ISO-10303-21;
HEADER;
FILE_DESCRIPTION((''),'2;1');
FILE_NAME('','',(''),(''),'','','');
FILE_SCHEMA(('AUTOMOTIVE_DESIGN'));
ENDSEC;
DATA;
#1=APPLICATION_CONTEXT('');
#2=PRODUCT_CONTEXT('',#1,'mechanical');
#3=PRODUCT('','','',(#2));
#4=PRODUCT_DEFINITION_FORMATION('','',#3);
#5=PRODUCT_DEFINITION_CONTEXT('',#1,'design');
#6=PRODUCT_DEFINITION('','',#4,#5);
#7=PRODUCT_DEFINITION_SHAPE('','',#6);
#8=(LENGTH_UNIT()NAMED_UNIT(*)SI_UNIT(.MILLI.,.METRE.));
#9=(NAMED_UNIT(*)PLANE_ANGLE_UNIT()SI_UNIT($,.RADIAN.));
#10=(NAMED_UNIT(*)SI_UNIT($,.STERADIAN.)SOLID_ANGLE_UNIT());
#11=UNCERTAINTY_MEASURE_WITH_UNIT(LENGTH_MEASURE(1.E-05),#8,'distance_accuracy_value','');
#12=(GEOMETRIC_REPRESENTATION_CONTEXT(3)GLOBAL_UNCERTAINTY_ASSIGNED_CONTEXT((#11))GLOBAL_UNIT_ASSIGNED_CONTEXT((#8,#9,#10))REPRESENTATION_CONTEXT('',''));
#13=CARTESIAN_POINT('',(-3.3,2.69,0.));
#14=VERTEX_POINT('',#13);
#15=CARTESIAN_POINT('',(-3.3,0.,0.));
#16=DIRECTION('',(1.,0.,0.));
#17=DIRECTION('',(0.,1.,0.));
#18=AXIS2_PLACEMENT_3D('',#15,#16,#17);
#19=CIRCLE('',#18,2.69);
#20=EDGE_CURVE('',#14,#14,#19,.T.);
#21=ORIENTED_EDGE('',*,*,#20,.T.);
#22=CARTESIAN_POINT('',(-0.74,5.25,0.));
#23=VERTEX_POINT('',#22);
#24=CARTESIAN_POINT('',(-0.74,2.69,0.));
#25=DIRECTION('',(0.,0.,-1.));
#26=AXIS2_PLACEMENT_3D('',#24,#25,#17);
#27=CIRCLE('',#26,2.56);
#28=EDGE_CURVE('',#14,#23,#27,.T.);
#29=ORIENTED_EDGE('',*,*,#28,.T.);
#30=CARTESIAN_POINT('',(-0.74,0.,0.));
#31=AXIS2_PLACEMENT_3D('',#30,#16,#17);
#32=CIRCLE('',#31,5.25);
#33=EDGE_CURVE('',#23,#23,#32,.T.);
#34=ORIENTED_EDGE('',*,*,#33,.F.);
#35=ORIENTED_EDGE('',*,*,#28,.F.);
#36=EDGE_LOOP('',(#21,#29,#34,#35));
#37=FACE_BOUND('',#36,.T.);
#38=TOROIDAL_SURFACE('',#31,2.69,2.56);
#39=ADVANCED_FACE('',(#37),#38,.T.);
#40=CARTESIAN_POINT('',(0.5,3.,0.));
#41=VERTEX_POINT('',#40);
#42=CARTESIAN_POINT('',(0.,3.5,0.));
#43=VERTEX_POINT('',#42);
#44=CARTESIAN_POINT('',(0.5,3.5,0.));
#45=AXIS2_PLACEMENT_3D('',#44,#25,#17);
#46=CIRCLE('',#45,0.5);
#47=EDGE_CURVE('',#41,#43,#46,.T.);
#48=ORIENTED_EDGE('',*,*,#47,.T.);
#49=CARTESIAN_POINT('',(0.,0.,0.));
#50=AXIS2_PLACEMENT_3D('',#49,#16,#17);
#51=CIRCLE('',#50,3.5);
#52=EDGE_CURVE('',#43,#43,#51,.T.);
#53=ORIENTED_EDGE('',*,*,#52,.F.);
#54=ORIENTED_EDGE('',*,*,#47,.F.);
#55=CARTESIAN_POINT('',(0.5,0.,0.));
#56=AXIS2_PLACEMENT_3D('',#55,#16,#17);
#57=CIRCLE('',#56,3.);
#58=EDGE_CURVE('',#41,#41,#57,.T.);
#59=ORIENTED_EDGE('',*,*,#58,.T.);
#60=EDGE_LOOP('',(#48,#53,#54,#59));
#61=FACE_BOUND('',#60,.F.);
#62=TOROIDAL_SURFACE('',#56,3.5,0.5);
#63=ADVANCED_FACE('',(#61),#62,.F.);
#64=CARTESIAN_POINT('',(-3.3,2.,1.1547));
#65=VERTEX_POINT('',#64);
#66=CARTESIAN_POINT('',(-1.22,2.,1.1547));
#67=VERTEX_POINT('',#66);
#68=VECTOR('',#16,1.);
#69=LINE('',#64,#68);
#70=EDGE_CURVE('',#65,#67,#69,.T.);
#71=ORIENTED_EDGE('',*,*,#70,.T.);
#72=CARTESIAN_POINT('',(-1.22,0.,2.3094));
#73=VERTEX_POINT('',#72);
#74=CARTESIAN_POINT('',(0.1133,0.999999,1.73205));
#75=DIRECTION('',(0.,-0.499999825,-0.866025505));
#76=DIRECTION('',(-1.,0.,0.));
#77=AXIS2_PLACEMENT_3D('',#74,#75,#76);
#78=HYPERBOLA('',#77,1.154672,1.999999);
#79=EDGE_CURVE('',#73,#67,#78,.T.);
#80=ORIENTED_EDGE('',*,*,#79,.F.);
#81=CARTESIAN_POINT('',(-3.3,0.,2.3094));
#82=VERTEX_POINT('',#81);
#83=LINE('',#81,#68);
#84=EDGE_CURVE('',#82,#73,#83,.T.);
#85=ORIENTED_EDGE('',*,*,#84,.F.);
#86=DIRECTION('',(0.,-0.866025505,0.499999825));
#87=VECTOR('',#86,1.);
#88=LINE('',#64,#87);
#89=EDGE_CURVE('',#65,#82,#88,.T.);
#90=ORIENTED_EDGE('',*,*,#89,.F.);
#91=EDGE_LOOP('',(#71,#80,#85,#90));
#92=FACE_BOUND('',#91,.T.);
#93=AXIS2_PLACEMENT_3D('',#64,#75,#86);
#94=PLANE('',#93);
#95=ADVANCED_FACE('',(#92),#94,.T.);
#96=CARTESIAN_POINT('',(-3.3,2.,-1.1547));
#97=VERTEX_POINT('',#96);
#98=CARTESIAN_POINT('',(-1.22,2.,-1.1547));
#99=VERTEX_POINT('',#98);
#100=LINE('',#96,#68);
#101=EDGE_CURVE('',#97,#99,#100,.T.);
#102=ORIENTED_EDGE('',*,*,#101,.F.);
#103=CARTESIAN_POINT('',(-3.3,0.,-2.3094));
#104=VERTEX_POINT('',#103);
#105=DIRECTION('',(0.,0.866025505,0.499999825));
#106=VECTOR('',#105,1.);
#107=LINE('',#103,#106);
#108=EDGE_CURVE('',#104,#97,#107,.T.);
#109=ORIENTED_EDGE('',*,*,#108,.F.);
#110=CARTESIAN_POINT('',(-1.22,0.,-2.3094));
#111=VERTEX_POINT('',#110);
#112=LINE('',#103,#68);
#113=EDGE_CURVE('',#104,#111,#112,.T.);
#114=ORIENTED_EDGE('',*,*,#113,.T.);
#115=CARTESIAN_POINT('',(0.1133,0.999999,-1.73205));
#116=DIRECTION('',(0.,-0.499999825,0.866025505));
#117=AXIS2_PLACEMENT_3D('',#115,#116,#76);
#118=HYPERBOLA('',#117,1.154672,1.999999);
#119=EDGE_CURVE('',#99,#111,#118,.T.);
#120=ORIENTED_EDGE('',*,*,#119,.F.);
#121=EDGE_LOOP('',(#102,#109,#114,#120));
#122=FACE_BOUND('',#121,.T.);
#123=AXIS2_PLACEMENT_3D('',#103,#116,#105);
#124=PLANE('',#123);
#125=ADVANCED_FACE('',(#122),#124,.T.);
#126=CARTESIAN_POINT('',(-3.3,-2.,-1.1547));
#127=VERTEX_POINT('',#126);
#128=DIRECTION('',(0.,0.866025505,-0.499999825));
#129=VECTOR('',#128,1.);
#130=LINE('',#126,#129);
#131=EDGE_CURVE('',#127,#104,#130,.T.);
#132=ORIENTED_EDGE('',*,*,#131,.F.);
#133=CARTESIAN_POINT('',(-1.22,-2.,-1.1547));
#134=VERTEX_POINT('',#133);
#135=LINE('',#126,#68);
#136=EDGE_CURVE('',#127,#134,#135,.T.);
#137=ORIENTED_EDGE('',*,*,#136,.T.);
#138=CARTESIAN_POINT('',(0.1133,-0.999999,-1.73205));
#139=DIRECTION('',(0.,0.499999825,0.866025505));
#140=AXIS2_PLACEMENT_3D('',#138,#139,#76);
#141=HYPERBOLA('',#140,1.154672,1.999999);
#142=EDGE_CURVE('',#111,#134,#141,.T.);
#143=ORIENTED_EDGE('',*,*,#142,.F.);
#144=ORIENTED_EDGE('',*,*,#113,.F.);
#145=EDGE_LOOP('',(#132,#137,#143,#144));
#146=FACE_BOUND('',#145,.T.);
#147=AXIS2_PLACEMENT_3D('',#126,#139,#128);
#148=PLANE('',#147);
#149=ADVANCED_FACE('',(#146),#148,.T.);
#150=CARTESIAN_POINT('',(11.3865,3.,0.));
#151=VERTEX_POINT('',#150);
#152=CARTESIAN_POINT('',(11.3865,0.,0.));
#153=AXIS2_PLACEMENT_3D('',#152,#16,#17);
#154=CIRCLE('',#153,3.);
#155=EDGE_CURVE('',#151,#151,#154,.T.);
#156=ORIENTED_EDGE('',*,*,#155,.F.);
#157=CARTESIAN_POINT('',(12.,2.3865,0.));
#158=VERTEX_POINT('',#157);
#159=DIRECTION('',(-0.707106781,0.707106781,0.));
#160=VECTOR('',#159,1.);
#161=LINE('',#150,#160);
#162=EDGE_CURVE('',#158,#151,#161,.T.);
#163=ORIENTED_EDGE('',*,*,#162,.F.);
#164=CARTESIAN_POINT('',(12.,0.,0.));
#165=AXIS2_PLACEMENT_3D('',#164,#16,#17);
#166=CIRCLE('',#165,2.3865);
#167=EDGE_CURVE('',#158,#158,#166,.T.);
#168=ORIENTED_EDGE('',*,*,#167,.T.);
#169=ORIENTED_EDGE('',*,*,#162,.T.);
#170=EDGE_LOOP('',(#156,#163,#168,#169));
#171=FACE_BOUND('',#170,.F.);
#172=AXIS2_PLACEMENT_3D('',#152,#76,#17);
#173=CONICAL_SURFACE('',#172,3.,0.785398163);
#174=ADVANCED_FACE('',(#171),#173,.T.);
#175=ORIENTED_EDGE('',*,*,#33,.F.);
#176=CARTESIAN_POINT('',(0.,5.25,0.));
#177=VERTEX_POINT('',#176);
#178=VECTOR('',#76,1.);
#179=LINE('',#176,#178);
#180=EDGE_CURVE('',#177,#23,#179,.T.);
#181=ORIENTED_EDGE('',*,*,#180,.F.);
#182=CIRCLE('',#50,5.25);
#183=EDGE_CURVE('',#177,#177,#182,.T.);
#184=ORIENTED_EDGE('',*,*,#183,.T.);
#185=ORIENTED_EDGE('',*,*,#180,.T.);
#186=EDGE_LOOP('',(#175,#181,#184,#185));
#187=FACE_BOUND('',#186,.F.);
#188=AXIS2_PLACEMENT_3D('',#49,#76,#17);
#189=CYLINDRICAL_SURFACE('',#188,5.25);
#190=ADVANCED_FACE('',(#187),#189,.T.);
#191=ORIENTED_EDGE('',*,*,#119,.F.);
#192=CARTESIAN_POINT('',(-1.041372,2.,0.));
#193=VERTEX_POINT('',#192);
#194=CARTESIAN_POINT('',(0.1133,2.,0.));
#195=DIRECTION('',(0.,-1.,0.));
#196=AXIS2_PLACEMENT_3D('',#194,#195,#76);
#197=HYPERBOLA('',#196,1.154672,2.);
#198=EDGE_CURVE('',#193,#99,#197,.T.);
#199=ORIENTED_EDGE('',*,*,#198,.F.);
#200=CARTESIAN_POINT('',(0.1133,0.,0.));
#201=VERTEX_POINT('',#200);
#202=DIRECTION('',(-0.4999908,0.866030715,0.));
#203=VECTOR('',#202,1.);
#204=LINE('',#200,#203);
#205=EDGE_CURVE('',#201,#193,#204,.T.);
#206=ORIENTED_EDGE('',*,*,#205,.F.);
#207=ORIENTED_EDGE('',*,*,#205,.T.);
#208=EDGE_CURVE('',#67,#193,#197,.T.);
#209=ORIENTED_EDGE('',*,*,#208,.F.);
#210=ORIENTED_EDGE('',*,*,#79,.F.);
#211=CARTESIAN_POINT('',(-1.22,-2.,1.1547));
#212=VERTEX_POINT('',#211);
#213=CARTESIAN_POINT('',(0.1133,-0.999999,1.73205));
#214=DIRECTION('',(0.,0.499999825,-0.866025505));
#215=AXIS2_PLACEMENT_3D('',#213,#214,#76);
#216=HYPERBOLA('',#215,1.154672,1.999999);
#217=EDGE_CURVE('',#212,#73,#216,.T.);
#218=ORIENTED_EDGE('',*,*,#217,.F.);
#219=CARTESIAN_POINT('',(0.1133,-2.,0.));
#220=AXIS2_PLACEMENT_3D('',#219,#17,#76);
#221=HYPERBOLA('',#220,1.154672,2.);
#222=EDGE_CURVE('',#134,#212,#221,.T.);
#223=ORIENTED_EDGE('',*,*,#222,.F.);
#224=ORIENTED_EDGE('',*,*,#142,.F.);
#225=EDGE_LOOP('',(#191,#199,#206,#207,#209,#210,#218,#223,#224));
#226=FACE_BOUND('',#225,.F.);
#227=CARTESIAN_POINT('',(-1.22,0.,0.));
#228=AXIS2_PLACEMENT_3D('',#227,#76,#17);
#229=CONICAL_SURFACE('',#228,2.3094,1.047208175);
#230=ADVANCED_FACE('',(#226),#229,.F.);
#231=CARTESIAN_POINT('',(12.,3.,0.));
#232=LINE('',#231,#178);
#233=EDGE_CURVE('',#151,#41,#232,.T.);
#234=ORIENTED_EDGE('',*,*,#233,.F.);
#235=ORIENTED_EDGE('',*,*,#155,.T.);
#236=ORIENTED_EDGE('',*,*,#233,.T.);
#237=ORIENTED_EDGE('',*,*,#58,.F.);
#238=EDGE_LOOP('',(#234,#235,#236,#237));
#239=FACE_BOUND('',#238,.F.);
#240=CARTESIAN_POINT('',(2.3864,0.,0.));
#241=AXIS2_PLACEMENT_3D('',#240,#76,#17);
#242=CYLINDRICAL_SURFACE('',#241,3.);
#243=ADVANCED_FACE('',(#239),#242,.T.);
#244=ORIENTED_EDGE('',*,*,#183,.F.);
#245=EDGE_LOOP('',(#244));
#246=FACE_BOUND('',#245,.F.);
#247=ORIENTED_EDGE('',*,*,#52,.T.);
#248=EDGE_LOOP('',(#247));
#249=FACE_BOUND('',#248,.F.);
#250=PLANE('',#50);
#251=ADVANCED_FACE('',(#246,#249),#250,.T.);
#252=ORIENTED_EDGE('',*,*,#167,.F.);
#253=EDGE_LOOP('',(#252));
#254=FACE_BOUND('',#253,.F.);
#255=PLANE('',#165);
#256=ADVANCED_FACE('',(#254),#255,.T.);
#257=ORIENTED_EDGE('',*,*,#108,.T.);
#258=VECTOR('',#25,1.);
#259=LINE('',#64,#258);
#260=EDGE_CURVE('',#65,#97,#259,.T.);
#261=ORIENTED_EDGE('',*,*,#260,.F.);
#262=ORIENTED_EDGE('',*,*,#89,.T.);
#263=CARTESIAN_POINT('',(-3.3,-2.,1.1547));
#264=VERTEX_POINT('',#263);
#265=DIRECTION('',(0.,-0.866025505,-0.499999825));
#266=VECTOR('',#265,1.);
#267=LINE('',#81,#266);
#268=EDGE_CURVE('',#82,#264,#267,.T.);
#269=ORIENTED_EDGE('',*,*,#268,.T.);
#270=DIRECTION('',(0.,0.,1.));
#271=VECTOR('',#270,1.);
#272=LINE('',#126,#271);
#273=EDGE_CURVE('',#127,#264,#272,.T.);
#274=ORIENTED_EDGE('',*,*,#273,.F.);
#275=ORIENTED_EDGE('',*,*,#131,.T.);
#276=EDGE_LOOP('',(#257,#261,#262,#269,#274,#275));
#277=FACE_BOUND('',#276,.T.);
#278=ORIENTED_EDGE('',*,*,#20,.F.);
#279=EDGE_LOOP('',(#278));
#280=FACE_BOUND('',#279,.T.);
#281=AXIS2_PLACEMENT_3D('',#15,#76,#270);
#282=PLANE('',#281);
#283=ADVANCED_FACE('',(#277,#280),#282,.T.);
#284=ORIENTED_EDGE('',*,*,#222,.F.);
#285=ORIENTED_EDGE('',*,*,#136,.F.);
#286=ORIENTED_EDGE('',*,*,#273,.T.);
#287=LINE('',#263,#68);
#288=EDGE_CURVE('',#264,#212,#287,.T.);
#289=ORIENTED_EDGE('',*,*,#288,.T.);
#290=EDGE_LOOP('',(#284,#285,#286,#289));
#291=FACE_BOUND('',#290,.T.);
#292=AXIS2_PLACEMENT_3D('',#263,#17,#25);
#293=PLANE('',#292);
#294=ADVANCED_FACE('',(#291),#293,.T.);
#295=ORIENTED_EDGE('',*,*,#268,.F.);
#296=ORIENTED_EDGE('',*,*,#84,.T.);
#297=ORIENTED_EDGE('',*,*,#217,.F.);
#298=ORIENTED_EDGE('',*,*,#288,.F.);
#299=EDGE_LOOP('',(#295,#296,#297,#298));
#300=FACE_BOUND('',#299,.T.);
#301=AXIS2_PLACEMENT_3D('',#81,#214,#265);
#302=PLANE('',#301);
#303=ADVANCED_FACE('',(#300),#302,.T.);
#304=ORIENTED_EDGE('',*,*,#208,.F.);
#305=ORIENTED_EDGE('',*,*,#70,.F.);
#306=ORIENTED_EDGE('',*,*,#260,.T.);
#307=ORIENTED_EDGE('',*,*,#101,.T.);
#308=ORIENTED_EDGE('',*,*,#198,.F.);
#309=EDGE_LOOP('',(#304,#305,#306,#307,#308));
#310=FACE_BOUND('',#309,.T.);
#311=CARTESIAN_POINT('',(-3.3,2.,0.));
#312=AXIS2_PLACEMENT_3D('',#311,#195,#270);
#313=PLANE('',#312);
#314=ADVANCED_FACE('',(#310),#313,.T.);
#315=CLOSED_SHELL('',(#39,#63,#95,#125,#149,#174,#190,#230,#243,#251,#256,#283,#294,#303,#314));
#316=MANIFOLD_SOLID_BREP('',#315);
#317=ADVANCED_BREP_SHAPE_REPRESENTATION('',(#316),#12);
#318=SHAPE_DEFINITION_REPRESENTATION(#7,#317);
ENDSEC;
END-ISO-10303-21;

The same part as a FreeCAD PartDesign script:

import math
import FreeCAD as App
import Part
import Sketcher

V = App.Vector
Q = App.Units.Quantity


def edges_at(feature, points):
    """Names of the edges that pass closest to the given points."""
    edges = feature.Shape.Edges
    near = lambda p: min(range(len(edges)), key=lambda i: edges[i].distToShape(Part.Vertex(*p))[0])
    return sorted({f"Edge{near(p) + 1}" for p in points})

doc = App.newDocument("Part")
params = doc.addObject("Spreadsheet::Sheet", "Params")
for row, (alias, value) in enumerate([
    ("sketch1_width", "12 mm"),
    ("sketch1_width2", "3.3 mm"),
    ("sketch1_width3", "2.08 mm"),
    ("sketch1_height", "3 mm"),
    ("sketch1_height2", "2.25 mm"),
    ("revolution_angle", "360 deg"),
    ("pad1_length", "2.2586 mm"),
    ("fillet_radius", "2.56 mm"),
    ("chamfer_size", "0.6135 mm"),
    ("chamfer_size2", "0.6135 mm"),
    ("fillet2_radius", "0.5 mm"),
], start=1):
    params.set(f"A{row}", alias)
    params.set(f"B{row}", "=" + value)
    params.setAlias(f"B{row}", alias)

body = doc.addObject("PartDesign::Body", "Body")

sketch1 = body.newObject("Sketcher::SketchObject", "Sketch")
sketch1.AttachmentSupport = (doc.getObject("XY_Plane"), [""])
sketch1.MapMode = "FlatFace"
sketch1.addGeometry(Part.LineSegment(V(0.1133, 0, 0), V(12, 0, 0)), False)
sketch1.addGeometry(Part.LineSegment(V(12, 0, 0), V(12, 3, 0)), False)
sketch1.addGeometry(Part.LineSegment(V(12, 3, 0), V(0, 3, 0)), False)
sketch1.addGeometry(Part.LineSegment(V(0, 3, 0), V(0, 5.25, 0)), False)
sketch1.addGeometry(Part.LineSegment(V(0, 5.25, 0), V(-3.3, 5.25, 0)), False)
sketch1.addGeometry(Part.LineSegment(V(-3.3, 5.25, 0), V(-3.3, 2.3094, 0)), False)
sketch1.addGeometry(Part.LineSegment(V(-3.3, 2.3094, 0), V(-1.22, 2.3094, 0)), False)
sketch1.addGeometry(Part.LineSegment(V(-1.22, 2.3094, 0), V(0.1133, 0, 0)), False)
sketch1.addConstraint(Sketcher.Constraint("Coincident", 0, 2, 1, 1))
sketch1.addConstraint(Sketcher.Constraint("Coincident", 1, 2, 2, 1))
sketch1.addConstraint(Sketcher.Constraint("Coincident", 2, 2, 3, 1))
sketch1.addConstraint(Sketcher.Constraint("Coincident", 3, 2, 4, 1))
sketch1.addConstraint(Sketcher.Constraint("Coincident", 4, 2, 5, 1))
sketch1.addConstraint(Sketcher.Constraint("Coincident", 5, 2, 6, 1))
sketch1.addConstraint(Sketcher.Constraint("Coincident", 6, 2, 7, 1))
sketch1.addConstraint(Sketcher.Constraint("Coincident", 7, 2, 0, 1))
sketch1.addConstraint(Sketcher.Constraint("Horizontal", 0))
sketch1.addConstraint(Sketcher.Constraint("Vertical", 1))
sketch1.addConstraint(Sketcher.Constraint("Horizontal", 2))
sketch1.addConstraint(Sketcher.Constraint("Vertical", 3))
sketch1.addConstraint(Sketcher.Constraint("Horizontal", 4))
sketch1.addConstraint(Sketcher.Constraint("Vertical", 5))
sketch1.addConstraint(Sketcher.Constraint("Horizontal", 6))
sketch1.addConstraint(Sketcher.Constraint("PointOnObject", 0, 2, -1))
sketch1.addConstraint(Sketcher.Constraint("PointOnObject", 2, 2, -2))
sketch1.addConstraint(Sketcher.Constraint("DistanceX", 2, 2, 2, 1, 12.0))
sketch1.addConstraint(Sketcher.Constraint("DistanceX", 4, 2, 4, 1, 3.3))
sketch1.addConstraint(Sketcher.Constraint("DistanceX", 6, 1, 6, 2, 2.08))
sketch1.addConstraint(Sketcher.Constraint("DistanceY", 1, 1, 1, 2, 3.0))
sketch1.addConstraint(Sketcher.Constraint("Angle", 7, Q("-60.0006 deg")))
sketch1.addConstraint(Sketcher.Constraint("DistanceY", 3, 1, 3, 2, 2.25))
sketch1.addConstraint(Sketcher.Constraint("DistanceX", 0, 1, 0, 2, 11.8867))
sketch1.setExpression("Constraints[17]", "Params.sketch1_width")
sketch1.setExpression("Constraints[18]", "Params.sketch1_width2")
sketch1.setExpression("Constraints[19]", "Params.sketch1_width3")
sketch1.setExpression("Constraints[20]", "Params.sketch1_height")
sketch1.setExpression("Constraints[22]", "Params.sketch1_height2")
revolution = body.newObject("PartDesign::Revolution", "Revolution")
revolution.Profile = sketch1
revolution.ReferenceAxis = (sketch1, ["H_Axis"])
revolution.setExpression("Angle", "Params.revolution_angle")

sketch2 = body.newObject("Sketcher::SketchObject", "Sketch001")
sketch2.AttachmentSupport = (doc.getObject("YZ_Plane"), [""])
sketch2.MapMode = "FlatFace"
sketch2.AttachmentOffset = App.Placement(V(0, 0, -3.3), App.Rotation())
sketch2.addGeometry(Part.LineSegment(V(2, 1.1547, 0), V(0, 2.3094, 0)), False)
sketch2.addGeometry(Part.ArcOfCircle(Part.Circle(V(0, 0, 0), V(0, 0, 1), 2.3094), math.radians(29.999988), math.radians(90)), False)
sketch2.addGeometry(Part.ArcOfCircle(Part.Circle(V(0, 0, 0), V(0, 0, 1), 2.3094), math.radians(90), math.radians(150.000012)), False)
sketch2.addGeometry(Part.LineSegment(V(0, 2.3094, 0), V(-2, 1.1547, 0)), False)
sketch2.addGeometry(Part.ArcOfCircle(Part.Circle(V(0, 0, 0), V(0, 0, 1), 2.3094), math.radians(-29.999988), math.radians(29.999988)), False)
sketch2.addGeometry(Part.LineSegment(V(2, -1.1547, 0), V(2, 1.1547, 0)), False)
sketch2.addGeometry(Part.LineSegment(V(-2, 1.1547, 0), V(-2, -1.1547, 0)), False)
sketch2.addGeometry(Part.ArcOfCircle(Part.Circle(V(0, 0, 0), V(0, 0, 1), 2.3094), math.radians(150.000012), math.radians(209.999988)), False)
sketch2.addGeometry(Part.LineSegment(V(-2, -1.1547, 0), V(0, -2.3094, 0)), False)
sketch2.addGeometry(Part.ArcOfCircle(Part.Circle(V(0, 0, 0), V(0, 0, 1), 2.3094), math.radians(-150.000012), math.radians(-90)), False)
sketch2.addGeometry(Part.ArcOfCircle(Part.Circle(V(0, 0, 0), V(0, 0, 1), 2.3094), math.radians(-90), math.radians(-29.999988)), False)
sketch2.addGeometry(Part.LineSegment(V(0, -2.3094, 0), V(2, -1.1547, 0)), False)
sketch2.addConstraint(Sketcher.Constraint("Coincident", 0, 1, 1, 1))
sketch2.addConstraint(Sketcher.Constraint("Coincident", 1, 2, 0, 2))
sketch2.addConstraint(Sketcher.Constraint("Coincident", 2, 1, 3, 1))
sketch2.addConstraint(Sketcher.Constraint("Coincident", 3, 2, 2, 2))
sketch2.addConstraint(Sketcher.Constraint("Coincident", 4, 1, 5, 1))
sketch2.addConstraint(Sketcher.Constraint("Coincident", 5, 2, 4, 2))
sketch2.addConstraint(Sketcher.Constraint("Coincident", 6, 1, 7, 1))
sketch2.addConstraint(Sketcher.Constraint("Coincident", 7, 2, 6, 2))
sketch2.addConstraint(Sketcher.Constraint("Coincident", 8, 1, 9, 1))
sketch2.addConstraint(Sketcher.Constraint("Coincident", 9, 2, 8, 2))
sketch2.addConstraint(Sketcher.Constraint("Coincident", 10, 1, 11, 1))
sketch2.addConstraint(Sketcher.Constraint("Coincident", 11, 2, 10, 2))
sketch2.addConstraint(Sketcher.Constraint("Vertical", 5))
sketch2.addConstraint(Sketcher.Constraint("Vertical", 6))
sketch2.addConstraint(Sketcher.Constraint("Coincident", 1, 3, -1, 1))
sketch2.addConstraint(Sketcher.Constraint("Coincident", 2, 3, -1, 1))
sketch2.addConstraint(Sketcher.Constraint("Coincident", 4, 3, -1, 1))
sketch2.addConstraint(Sketcher.Constraint("Coincident", 7, 3, -1, 1))
sketch2.addConstraint(Sketcher.Constraint("Coincident", 9, 3, -1, 1))
sketch2.addConstraint(Sketcher.Constraint("Coincident", 10, 3, -1, 1))
sketch2.addConstraint(Sketcher.Constraint("Coincident", 2, 1, 1, 2))
sketch2.addConstraint(Sketcher.Constraint("Coincident", 5, 2, 0, 1))
sketch2.addConstraint(Sketcher.Constraint("Coincident", 6, 1, 3, 2))
sketch2.addConstraint(Sketcher.Constraint("Coincident", 8, 1, 7, 2))
sketch2.addConstraint(Sketcher.Constraint("Coincident", 10, 1, 9, 2))
sketch2.addConstraint(Sketcher.Constraint("PointOnObject", 1, 2, -2))
sketch2.addConstraint(Sketcher.Constraint("PointOnObject", 9, 2, -2))
sketch2.addConstraint(Sketcher.Constraint("Parallel", 0, 8))
sketch2.addConstraint(Sketcher.Constraint("Parallel", 3, 11))
sketch2.addConstraint(Sketcher.Constraint("Angle", 0, Q("150 deg")))
sketch2.addConstraint(Sketcher.Constraint("DistanceX", -1, 1, 0, 1, 2.0))
pad1 = body.newObject("PartDesign::Pad", "Pad")
pad1.Profile = sketch2
pad1.setExpression("Length", "Params.pad1_length")
doc.recompute()

fillet = body.newObject("PartDesign::Fillet", "Fillet")
fillet.Base = (pad1, edges_at(pad1, [(-3.3, -5.25, 0)]))
fillet.setExpression("Radius", "Params.fillet_radius")
doc.recompute()

chamfer = body.newObject("PartDesign::Chamfer", "Chamfer")
chamfer.Base = (fillet, edges_at(fillet, [(12, -3, 0)]))
chamfer.ChamferType = "Two distances"
chamfer.setExpression("Size", "Params.chamfer_size")
chamfer.setExpression("Size2", "Params.chamfer_size2")
doc.recompute()

fillet2 = body.newObject("PartDesign::Fillet", "Fillet001")
fillet2.Base = (chamfer, edges_at(chamfer, [(0, -3, 0)]))
fillet2.setExpression("Radius", "Params.fillet2_radius")

doc.recompute()
